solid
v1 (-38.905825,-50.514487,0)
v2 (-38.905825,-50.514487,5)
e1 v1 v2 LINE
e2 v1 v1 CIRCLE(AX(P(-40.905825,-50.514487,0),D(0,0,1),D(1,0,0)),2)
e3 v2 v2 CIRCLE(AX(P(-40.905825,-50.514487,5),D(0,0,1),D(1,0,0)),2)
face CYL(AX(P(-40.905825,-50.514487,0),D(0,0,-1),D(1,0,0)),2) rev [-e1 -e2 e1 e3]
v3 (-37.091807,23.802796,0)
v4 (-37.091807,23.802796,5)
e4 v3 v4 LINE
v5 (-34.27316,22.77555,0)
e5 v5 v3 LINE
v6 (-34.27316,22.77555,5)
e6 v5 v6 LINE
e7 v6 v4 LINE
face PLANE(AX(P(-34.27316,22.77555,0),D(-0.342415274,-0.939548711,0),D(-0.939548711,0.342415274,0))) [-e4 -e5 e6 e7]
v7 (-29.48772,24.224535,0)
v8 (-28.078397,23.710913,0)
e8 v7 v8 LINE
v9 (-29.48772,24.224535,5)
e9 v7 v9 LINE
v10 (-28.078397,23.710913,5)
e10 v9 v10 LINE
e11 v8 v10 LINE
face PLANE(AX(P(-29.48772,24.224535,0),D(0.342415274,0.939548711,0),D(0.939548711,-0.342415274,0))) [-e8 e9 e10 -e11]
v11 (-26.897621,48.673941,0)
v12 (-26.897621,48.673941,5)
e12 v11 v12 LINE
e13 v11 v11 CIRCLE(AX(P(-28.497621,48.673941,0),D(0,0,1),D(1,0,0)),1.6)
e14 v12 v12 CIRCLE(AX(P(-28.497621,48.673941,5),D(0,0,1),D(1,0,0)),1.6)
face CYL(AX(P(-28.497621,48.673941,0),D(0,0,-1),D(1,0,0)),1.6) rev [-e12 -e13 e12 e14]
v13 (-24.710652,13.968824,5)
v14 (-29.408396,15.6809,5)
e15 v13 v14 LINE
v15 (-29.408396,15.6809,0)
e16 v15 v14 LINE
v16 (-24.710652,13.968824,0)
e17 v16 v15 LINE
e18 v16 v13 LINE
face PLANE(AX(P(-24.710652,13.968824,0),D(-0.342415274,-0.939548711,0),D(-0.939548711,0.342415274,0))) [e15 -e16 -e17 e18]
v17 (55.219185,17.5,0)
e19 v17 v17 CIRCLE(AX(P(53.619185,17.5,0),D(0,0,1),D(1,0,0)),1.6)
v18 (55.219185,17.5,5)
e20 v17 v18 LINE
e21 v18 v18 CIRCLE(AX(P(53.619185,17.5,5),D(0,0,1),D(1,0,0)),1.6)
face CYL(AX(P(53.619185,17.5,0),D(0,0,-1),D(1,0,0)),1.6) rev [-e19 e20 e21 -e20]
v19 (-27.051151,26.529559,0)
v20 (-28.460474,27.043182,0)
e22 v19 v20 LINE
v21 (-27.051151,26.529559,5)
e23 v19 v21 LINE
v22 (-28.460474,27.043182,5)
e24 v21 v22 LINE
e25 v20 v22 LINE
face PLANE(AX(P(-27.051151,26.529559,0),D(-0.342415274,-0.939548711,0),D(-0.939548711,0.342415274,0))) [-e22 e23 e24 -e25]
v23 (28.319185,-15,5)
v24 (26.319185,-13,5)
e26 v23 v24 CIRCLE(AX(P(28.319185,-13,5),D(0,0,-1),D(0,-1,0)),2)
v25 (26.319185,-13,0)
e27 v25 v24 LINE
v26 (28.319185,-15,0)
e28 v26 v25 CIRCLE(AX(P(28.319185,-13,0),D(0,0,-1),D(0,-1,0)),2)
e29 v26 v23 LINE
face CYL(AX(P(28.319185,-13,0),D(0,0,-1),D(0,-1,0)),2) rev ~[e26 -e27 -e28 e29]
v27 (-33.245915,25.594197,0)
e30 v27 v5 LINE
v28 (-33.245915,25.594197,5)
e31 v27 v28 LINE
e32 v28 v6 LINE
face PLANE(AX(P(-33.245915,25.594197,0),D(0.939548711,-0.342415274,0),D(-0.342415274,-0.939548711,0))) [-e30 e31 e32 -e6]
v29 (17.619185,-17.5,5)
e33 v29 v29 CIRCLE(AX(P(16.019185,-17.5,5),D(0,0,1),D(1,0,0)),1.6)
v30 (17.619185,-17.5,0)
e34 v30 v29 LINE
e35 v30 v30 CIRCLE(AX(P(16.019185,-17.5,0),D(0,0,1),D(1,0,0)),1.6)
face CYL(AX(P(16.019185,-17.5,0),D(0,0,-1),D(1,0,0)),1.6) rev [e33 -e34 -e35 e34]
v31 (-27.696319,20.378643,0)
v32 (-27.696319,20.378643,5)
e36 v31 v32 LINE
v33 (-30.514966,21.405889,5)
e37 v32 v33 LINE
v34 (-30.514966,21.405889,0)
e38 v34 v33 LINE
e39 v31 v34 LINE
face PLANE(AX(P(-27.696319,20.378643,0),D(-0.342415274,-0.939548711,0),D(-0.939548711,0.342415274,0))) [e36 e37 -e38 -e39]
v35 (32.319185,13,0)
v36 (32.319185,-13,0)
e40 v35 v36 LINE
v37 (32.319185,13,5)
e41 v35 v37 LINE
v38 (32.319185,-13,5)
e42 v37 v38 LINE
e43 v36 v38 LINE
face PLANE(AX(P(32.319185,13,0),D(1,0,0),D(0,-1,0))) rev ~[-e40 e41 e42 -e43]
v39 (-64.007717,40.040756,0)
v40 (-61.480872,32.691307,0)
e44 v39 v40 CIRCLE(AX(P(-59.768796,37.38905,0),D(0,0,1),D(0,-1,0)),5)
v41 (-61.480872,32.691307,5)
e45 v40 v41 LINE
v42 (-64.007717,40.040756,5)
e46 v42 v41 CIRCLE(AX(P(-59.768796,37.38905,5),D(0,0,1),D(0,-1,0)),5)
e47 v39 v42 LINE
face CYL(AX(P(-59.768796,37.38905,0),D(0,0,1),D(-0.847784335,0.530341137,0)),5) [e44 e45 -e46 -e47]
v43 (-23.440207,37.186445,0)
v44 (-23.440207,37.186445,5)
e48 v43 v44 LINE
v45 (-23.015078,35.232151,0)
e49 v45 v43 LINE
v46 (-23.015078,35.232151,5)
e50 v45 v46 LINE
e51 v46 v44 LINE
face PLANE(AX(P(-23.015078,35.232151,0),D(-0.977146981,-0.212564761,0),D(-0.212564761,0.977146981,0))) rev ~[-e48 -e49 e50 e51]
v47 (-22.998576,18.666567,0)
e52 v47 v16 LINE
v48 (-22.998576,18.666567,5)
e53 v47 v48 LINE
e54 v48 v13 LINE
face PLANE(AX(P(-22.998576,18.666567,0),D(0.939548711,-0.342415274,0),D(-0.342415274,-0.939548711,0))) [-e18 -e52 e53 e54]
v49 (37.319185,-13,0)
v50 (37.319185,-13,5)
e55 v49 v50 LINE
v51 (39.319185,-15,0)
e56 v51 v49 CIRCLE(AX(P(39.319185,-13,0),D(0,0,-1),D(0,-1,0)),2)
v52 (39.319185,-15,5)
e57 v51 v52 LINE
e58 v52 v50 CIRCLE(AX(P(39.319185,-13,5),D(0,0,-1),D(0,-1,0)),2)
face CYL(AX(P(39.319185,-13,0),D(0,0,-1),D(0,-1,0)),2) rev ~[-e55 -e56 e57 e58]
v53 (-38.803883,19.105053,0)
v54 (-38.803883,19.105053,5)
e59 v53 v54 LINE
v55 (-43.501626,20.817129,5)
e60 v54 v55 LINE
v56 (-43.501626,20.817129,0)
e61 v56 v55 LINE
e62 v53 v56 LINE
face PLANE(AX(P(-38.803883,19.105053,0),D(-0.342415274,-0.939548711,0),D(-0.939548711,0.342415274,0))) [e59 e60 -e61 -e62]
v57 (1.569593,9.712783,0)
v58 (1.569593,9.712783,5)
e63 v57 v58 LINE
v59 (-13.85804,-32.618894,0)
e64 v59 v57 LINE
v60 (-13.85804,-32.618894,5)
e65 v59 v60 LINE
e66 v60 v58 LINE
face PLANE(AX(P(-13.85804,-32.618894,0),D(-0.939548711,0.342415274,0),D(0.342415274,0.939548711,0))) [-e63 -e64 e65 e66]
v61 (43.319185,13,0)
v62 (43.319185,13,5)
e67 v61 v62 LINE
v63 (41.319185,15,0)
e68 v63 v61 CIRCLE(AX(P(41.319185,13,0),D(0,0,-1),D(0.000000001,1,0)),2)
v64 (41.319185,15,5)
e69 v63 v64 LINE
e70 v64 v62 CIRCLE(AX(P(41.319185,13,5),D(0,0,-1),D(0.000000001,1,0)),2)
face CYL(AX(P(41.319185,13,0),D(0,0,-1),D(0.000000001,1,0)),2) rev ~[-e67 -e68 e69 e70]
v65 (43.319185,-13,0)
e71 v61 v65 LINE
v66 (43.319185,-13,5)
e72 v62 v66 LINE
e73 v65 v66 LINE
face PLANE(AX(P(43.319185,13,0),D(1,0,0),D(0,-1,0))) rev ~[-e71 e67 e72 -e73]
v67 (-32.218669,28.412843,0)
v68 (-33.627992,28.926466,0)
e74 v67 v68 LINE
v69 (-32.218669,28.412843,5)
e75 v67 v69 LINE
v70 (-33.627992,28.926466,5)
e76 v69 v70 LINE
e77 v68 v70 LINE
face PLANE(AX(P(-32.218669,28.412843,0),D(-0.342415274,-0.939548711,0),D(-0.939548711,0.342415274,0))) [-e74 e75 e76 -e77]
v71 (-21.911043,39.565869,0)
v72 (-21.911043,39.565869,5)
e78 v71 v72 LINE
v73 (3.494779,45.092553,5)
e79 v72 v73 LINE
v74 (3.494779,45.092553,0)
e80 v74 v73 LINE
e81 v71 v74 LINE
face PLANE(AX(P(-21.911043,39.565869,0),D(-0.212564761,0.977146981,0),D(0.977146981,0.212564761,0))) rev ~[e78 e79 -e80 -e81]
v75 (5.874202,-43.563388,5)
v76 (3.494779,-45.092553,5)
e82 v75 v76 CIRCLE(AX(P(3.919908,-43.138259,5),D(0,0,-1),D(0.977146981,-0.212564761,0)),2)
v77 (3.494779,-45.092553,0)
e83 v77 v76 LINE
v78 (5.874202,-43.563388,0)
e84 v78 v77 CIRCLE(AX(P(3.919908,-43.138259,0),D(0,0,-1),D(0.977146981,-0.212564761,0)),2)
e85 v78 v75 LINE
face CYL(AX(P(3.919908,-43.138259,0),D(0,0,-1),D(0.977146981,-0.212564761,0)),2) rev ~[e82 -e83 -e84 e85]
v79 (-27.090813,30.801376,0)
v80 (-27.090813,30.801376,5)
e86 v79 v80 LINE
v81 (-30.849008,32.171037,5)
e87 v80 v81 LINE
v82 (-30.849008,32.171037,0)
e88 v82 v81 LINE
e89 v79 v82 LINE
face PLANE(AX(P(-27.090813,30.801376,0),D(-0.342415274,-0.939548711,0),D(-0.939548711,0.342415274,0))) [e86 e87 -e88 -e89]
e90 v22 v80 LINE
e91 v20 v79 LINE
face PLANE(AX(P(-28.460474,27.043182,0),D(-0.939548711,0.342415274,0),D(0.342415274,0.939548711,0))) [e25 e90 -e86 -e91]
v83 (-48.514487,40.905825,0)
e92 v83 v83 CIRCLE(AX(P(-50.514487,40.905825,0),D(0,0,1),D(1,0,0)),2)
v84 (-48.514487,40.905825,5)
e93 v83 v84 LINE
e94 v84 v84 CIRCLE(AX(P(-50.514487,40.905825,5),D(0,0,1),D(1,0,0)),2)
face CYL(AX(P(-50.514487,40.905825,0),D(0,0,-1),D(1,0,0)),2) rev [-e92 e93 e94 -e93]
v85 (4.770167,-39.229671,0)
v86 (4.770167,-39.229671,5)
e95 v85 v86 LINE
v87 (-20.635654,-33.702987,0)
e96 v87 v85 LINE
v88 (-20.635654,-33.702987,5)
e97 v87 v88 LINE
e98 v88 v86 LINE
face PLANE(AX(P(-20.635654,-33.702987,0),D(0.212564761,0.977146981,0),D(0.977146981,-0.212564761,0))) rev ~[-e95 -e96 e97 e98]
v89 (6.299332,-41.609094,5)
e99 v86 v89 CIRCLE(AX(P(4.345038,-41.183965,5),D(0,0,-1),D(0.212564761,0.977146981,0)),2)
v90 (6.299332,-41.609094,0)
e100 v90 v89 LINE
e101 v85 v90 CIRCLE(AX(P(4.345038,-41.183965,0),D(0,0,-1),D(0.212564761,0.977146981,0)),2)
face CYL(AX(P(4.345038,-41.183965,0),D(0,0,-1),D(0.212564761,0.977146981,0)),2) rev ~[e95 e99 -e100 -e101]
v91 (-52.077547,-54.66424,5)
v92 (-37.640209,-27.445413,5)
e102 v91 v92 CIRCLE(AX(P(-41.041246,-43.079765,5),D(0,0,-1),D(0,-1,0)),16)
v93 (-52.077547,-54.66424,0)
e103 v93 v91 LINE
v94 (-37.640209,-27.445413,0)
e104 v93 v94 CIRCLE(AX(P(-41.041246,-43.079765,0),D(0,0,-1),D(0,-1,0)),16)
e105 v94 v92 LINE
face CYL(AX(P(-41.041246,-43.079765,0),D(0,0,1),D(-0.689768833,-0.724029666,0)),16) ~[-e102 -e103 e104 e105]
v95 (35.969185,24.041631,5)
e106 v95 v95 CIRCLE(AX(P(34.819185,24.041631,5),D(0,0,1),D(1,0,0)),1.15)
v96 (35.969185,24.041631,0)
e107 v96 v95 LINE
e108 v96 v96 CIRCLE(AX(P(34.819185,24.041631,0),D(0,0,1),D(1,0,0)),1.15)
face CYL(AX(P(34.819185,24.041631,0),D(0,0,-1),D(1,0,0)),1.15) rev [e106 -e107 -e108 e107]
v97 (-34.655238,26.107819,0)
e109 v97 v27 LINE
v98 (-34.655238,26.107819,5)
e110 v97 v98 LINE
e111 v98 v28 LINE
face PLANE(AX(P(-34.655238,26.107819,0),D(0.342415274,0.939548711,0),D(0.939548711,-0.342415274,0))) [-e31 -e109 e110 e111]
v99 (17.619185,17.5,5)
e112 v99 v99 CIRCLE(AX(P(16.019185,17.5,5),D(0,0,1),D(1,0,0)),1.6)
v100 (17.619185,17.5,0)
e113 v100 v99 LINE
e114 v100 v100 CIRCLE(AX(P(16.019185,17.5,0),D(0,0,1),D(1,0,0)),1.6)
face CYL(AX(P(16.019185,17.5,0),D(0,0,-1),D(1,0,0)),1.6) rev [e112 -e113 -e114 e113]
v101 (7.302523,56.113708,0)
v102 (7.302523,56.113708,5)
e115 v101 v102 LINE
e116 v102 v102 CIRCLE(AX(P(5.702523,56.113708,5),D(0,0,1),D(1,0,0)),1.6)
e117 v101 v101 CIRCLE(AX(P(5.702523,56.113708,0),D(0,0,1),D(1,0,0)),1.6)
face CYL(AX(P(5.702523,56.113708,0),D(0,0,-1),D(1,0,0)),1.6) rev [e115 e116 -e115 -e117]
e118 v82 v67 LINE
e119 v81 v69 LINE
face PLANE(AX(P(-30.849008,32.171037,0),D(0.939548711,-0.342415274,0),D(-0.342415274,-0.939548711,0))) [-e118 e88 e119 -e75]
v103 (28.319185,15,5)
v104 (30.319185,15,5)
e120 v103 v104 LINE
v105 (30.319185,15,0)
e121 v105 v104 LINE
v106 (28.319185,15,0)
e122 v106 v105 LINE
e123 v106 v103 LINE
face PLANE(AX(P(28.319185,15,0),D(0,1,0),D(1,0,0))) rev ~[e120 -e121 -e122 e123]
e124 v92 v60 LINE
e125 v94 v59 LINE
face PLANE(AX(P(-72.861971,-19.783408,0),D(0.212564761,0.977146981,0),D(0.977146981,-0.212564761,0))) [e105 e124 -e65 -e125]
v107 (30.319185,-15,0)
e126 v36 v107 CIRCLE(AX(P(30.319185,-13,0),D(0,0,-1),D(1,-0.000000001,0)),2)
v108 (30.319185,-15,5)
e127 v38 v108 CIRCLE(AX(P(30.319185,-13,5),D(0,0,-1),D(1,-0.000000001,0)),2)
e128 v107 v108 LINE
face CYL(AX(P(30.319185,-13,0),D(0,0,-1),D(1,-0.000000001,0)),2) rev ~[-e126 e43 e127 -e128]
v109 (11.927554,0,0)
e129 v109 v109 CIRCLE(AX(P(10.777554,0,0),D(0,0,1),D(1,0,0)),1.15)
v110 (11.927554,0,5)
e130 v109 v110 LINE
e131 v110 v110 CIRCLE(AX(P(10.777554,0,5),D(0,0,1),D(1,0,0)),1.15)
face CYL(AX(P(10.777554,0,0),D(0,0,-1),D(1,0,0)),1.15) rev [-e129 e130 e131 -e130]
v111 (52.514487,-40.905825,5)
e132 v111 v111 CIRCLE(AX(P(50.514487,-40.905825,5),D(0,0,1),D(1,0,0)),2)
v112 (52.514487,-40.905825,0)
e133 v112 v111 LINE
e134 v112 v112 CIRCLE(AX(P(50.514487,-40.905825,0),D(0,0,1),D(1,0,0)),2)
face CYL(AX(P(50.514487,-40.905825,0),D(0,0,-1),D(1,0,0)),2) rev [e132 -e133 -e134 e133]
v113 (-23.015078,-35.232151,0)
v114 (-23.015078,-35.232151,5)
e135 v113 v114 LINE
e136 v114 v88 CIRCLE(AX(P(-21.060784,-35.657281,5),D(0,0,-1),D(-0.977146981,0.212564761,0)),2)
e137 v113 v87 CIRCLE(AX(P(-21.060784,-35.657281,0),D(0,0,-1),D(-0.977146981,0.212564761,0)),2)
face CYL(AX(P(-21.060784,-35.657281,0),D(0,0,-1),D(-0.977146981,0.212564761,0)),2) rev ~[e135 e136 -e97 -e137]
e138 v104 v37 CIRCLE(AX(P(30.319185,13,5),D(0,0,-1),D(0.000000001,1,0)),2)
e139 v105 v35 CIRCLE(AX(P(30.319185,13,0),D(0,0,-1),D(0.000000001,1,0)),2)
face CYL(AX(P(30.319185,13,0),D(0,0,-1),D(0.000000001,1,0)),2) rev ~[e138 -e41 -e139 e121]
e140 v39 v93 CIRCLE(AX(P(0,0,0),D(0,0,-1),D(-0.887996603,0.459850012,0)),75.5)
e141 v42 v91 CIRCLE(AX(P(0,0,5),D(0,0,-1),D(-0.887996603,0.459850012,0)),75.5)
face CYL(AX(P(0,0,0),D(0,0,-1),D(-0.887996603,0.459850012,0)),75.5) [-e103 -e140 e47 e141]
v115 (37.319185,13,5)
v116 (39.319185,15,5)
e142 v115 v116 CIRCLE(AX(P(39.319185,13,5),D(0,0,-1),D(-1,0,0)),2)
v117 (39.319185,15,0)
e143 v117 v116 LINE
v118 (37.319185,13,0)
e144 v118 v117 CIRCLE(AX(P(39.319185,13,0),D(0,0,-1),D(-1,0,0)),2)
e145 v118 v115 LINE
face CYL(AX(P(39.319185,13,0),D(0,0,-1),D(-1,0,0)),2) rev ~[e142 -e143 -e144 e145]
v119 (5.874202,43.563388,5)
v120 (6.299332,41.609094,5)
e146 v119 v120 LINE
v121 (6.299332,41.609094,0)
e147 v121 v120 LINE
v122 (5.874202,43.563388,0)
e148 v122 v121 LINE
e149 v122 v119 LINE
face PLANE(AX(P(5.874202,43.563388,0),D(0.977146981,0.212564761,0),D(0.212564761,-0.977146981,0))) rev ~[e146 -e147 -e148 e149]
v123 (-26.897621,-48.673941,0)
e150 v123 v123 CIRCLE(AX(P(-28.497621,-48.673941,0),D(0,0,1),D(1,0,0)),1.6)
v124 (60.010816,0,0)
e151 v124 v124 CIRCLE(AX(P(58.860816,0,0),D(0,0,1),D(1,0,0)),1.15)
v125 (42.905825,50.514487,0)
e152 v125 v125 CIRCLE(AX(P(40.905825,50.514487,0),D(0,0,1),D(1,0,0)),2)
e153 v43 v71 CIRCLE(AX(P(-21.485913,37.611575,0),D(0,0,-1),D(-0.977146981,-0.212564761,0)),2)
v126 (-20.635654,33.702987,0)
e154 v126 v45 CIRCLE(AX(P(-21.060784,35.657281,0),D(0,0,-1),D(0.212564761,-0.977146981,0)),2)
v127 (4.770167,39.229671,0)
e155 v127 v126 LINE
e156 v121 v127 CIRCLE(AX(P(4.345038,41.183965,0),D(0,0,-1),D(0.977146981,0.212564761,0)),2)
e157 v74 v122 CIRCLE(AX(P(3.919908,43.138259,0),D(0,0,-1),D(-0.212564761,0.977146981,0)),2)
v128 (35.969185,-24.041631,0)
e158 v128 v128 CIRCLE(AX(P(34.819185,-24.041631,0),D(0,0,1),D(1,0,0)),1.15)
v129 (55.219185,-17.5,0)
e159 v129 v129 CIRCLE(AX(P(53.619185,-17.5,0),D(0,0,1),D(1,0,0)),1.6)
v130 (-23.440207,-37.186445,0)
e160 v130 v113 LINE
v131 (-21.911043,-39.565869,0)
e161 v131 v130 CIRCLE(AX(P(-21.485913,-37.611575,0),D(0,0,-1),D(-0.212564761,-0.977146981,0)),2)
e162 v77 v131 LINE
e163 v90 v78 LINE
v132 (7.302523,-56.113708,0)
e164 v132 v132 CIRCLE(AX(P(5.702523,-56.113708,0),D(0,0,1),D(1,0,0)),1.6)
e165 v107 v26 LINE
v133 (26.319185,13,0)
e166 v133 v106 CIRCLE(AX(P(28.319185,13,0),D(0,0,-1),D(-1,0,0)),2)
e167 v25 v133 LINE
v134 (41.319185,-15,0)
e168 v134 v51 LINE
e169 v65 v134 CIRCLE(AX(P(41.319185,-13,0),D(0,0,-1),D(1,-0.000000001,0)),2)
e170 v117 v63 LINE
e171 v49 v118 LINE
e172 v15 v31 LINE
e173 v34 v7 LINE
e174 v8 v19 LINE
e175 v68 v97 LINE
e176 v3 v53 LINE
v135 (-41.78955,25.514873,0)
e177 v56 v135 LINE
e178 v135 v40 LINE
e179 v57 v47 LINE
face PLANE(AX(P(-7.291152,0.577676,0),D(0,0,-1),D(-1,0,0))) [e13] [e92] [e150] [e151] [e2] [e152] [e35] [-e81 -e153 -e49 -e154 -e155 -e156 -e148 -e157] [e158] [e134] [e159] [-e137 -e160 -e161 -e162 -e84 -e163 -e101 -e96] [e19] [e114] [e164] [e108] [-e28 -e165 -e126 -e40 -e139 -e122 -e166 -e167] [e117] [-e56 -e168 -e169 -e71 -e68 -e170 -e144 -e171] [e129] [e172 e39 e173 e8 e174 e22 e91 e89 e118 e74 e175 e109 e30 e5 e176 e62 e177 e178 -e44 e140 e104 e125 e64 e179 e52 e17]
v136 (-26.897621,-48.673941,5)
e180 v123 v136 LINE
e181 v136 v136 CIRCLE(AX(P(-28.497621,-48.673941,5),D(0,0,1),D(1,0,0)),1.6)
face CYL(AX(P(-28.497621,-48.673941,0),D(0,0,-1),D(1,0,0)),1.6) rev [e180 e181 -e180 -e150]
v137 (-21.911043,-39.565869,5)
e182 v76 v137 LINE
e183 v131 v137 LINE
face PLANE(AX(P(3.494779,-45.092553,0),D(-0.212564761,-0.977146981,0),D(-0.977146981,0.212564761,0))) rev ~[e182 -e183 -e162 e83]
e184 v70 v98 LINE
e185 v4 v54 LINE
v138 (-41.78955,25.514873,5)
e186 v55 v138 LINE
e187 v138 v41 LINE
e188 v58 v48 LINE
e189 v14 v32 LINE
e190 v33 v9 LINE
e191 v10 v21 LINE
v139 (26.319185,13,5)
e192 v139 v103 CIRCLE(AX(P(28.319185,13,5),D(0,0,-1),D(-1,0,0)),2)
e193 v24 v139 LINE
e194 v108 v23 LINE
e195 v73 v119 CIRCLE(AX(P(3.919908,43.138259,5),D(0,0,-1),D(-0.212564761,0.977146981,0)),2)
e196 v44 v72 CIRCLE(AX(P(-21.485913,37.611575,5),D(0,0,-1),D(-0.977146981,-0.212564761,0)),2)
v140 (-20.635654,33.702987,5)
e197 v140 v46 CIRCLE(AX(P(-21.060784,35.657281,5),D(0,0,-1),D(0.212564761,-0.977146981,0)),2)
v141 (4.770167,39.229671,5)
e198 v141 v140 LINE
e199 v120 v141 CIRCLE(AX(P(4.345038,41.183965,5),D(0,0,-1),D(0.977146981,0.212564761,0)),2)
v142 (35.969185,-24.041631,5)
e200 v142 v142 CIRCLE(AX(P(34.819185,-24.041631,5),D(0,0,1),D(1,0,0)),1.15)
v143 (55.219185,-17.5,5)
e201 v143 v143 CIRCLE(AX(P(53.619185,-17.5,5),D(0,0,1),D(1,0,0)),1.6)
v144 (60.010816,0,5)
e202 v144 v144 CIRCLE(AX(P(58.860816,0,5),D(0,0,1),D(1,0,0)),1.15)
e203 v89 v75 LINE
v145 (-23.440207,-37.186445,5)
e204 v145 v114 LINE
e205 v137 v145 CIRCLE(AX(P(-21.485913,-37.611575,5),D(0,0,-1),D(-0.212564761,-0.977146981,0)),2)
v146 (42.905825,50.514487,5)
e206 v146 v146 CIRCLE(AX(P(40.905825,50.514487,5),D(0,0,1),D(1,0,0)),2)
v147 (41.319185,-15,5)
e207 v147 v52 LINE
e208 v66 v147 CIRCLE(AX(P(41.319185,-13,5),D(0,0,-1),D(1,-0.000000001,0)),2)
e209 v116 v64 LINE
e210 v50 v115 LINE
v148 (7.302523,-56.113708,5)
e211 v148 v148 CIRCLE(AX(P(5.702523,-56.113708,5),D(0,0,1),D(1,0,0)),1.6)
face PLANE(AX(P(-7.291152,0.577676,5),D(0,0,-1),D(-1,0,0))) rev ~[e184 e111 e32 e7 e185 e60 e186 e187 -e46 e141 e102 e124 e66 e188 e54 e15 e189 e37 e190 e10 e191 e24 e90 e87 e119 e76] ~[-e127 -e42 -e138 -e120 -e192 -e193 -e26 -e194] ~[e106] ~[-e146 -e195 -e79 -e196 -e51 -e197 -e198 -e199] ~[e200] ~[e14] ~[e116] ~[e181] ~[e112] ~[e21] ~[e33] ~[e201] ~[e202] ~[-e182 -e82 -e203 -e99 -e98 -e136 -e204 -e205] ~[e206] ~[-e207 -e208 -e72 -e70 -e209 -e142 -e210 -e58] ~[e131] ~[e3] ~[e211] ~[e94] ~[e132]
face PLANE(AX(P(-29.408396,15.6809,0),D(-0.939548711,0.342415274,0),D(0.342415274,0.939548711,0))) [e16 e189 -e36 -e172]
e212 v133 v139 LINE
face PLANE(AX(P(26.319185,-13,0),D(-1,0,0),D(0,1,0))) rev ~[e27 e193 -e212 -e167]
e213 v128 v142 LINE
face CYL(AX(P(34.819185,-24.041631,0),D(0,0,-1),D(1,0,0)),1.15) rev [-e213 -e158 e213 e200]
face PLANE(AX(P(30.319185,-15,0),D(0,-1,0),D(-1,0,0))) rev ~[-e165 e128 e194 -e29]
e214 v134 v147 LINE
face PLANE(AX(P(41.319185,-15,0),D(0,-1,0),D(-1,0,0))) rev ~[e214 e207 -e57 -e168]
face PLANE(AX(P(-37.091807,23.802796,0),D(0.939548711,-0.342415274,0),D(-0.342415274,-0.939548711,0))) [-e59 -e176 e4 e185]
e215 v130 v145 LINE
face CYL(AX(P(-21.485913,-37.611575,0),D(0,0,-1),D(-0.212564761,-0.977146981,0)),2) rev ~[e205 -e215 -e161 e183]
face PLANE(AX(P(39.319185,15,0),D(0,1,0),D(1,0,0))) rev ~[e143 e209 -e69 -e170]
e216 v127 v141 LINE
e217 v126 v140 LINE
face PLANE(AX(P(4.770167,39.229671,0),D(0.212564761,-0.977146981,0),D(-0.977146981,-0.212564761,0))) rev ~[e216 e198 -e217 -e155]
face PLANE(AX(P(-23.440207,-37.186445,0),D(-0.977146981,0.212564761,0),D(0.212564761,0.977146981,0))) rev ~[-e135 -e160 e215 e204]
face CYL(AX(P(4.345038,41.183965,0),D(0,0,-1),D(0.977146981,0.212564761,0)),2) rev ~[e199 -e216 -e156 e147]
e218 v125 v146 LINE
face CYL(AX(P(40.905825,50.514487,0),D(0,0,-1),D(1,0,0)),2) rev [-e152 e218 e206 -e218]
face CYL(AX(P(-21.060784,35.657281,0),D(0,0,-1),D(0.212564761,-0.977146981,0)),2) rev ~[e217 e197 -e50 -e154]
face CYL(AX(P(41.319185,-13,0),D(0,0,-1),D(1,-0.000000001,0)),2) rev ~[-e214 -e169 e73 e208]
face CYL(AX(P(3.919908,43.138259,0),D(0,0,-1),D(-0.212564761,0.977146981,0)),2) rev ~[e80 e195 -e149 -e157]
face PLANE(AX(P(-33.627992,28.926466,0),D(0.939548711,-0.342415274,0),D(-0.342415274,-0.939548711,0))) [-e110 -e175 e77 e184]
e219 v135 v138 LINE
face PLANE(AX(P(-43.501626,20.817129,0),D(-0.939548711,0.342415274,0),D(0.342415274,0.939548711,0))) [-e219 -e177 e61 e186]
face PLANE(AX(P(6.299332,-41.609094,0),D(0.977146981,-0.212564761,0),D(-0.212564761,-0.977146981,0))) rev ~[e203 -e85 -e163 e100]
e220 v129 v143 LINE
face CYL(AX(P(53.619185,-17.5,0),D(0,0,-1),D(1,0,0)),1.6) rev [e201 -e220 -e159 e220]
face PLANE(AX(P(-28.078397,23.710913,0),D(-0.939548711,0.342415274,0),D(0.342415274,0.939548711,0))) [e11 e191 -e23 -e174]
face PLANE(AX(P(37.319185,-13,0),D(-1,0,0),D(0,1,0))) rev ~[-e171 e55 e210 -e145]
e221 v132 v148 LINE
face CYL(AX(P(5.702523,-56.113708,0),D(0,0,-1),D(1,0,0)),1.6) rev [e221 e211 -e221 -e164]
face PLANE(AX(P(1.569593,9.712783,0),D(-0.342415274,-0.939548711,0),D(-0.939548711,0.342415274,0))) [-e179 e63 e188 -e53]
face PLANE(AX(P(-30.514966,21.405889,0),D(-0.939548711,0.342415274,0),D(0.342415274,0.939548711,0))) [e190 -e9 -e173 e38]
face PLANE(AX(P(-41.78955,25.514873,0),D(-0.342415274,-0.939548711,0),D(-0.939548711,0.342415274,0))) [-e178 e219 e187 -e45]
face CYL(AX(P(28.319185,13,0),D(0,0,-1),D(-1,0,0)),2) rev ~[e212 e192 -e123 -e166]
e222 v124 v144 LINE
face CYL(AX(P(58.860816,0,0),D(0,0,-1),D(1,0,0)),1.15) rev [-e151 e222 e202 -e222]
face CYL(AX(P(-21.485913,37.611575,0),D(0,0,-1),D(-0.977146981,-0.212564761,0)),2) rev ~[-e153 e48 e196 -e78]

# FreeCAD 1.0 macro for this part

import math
import FreeCAD as App
import Part
import Sketcher
from FreeCAD import Vector
Q = App.Units.Quantity


def edges_at(feature, points):
    """Names of the edges that pass closest to the given points."""
    edges = feature.Shape.Edges
    near = lambda p: min(range(len(edges)), key=lambda i: edges[i].distToShape(Part.Vertex(*p))[0])
    return sorted({f"Edge{near(p) + 1}" for p in points})

doc = App.newDocument("Part")
params = doc.addObject("Spreadsheet::Sheet", "Params")
for row, (alias, value) in enumerate([
    ("sketch1_diameter", "4 mm"),
    ("sketch1_diameter2", "3.2 mm"),
    ("sketch1_diameter3", "2.3 mm"),
    ("sketch1_radius", "75.5 mm"),
    ("sketch1_width", "2 mm"),
    ("pad1_length", "5 mm"),
    ("fillet_radius", "16 mm"),
    ("fillet2_radius", "5 mm"),
], start=1):
    params.set(f"A{row}", alias)
    params.set(f"B{row}", "=" + value)
    params.setAlias(f"B{row}", alias)

body = doc.addObject("PartDesign::Body", "Body")

sketch1 = body.newObject("Sketcher::SketchObject", "Sketch")
sketch1.AttachmentSupport = (doc.getObject("XY_Plane"), [""])
sketch1.MapMode = "FlatFace"
sketch1.addGeometry(Part.LineSegment(Vector(-67, 34.7, 0), Vector(-41.8, 25.5, 0)), False)
sketch1.addGeometry(Part.LineSegment(Vector(-41.8, 25.5, 0), Vector(-43.5, 20.8, 0)), False)
sketch1.addGeometry(Part.LineSegment(Vector(-43.5, 20.8, 0), Vector(-38.8, 19.1, 0)), False)
sketch1.addGeometry(Part.LineSegment(Vector(-38.8, 19.1, 0), Vector(-37.1, 23.8, 0)), False)
sketch1.addGeometry(Part.LineSegment(Vector(-37.1, 23.8, 0), Vector(-34.3, 22.8, 0)), False)
sketch1.addGeometry(Part.LineSegment(Vector(-34.3, 22.8, 0), Vector(-33.2, 25.6, 0)), False)
sketch1.addGeometry(Part.LineSegment(Vector(-33.2, 25.6, 0), Vector(-34.7, 26.1, 0)), False)
sketch1.addGeometry(Part.LineSegment(Vector(-34.7, 26.1, 0), Vector(-33.6, 28.9, 0)), False)
sketch1.addGeometry(Part.LineSegment(Vector(-33.6, 28.9, 0), Vector(-32.2, 28.4, 0)), False)
sketch1.addGeometry(Part.LineSegment(Vector(-32.2, 28.4, 0), Vector(-30.8, 32.2, 0)), False)
sketch1.addGeometry(Part.LineSegment(Vector(-30.8, 32.2, 0), Vector(-27.1, 30.8, 0)), False)
sketch1.addGeometry(Part.LineSegment(Vector(-27.1, 30.8, 0), Vector(-28.5, 27, 0)), False)
sketch1.addGeometry(Part.LineSegment(Vector(-28.5, 27, 0), Vector(-27.1, 26.5, 0)), False)
sketch1.addGeometry(Part.LineSegment(Vector(-27.1, 26.5, 0), Vector(-28.1, 23.7, 0)), False)
sketch1.addGeometry(Part.LineSegment(Vector(-28.1, 23.7, 0), Vector(-29.5, 24.2, 0)), False)
sketch1.addGeometry(Part.LineSegment(Vector(-29.5, 24.2, 0), Vector(-30.5, 21.4, 0)), False)
sketch1.addGeometry(Part.LineSegment(Vector(-30.5, 21.4, 0), Vector(-27.7, 20.4, 0)), False)
sketch1.addGeometry(Part.LineSegment(Vector(-27.7, 20.4, 0), Vector(-29.4, 15.7, 0)), False)
sketch1.addGeometry(Part.LineSegment(Vector(-29.4, 15.7, 0), Vector(-24.7, 14, 0)), False)
sketch1.addGeometry(Part.LineSegment(Vector(-24.7, 14, 0), Vector(-23, 18.7, 0)), False)
sketch1.addGeometry(Part.LineSegment(Vector(-23, 18.7, 0), Vector(1.6, 9.7, 0)), False)
sketch1.addGeometry(Part.LineSegment(Vector(1.6, 9.7, 0), Vector(-13.9, -32.6, 0)), False)
sketch1.addGeometry(Part.LineSegment(Vector(-13.9, -32.6, 0), Vector(-72.9, -19.8, 0)), False)
sketch1.addGeometry(Part.ArcOfCircle(Part.Circle(Vector(0, 0, 0), Vector(0, 0, 1), 75.5), math.radians(-165), math.radians(153)), False)
sketch1.addGeometry(Part.Circle(Vector(50.5, -40.9, 0), Vector(0, 0, 1), 2), False)
sketch1.addGeometry(Part.Circle(Vector(5.7, -56.1, 0), Vector(0, 0, 1), 1.6), False)
sketch1.addGeometry(Part.Circle(Vector(53.6, -17.5, 0), Vector(0, 0, 1), 1.6), False)
sketch1.addGeometry(Part.Circle(Vector(34.8, -24, 0), Vector(0, 0, 1), 1.1), False)
sketch1.addGeometry(Part.LineSegment(Vector(39.3, 15, 0), Vector(41.3, 15, 0)), False)
sketch1.addGeometry(Part.ArcOfCircle(Part.Circle(Vector(41.3, 13, 0), Vector(0, 0, 1), 2), math.radians(0), math.radians(90)), False)
sketch1.addGeometry(Part.LineSegment(Vector(43.3, 13, 0), Vector(43.3, -13, 0)), False)
sketch1.addGeometry(Part.ArcOfCircle(Part.Circle(Vector(41.3, -13, 0), Vector(0, 0, 1), 2), math.radians(-90), math.radians(0)), False)
sketch1.addGeometry(Part.LineSegment(Vector(41.3, -15, 0), Vector(39.3, -15, 0)), False)
sketch1.addGeometry(Part.ArcOfCircle(Part.Circle(Vector(39.3, -13, 0), Vector(0, 0, 1), 2), math.radians(180), math.radians(270)), False)
sketch1.addGeometry(Part.LineSegment(Vector(37.3, -13, 0), Vector(37.3, 13, 0)), False)
sketch1.addGeometry(Part.ArcOfCircle(Part.Circle(Vector(39.3, 13, 0), Vector(0, 0, 1), 2), math.radians(90), math.radians(180)), False)
sketch1.addGeometry(Part.Circle(Vector(16, -17.5, 0), Vector(0, 0, 1), 1.6), False)
sketch1.addGeometry(Part.LineSegment(Vector(6.3, -41.6, 0), Vector(5.9, -43.6, 0)), False)
sketch1.addGeometry(Part.ArcOfCircle(Part.Circle(Vector(3.9, -43.1, 0), Vector(0, 0, 1), 2), math.radians(-102), math.radians(-12)), False)
sketch1.addGeometry(Part.LineSegment(Vector(3.5, -45.1, 0), Vector(-21.9, -39.6, 0)), False)
sketch1.addGeometry(Part.ArcOfCircle(Part.Circle(Vector(-21.5, -37.6, 0), Vector(0, 0, 1), 2), math.radians(168), math.radians(258)), False)
sketch1.addGeometry(Part.LineSegment(Vector(-23.4, -37.2, 0), Vector(-23, -35.2, 0)), False)
sketch1.addGeometry(Part.ArcOfCircle(Part.Circle(Vector(-21.1, -35.7, 0), Vector(0, 0, 1), 2), math.radians(78), math.radians(168)), False)
sketch1.addGeometry(Part.LineSegment(Vector(-20.6, -33.7, 0), Vector(4.8, -39.2, 0)), False)
sketch1.addGeometry(Part.ArcOfCircle(Part.Circle(Vector(4.3, -41.2, 0), Vector(0, 0, 1), 2), math.radians(-12), math.radians(78)), False)
sketch1.addGeometry(Part.Circle(Vector(-28.5, -48.7, 0), Vector(0, 0, 1), 1.6), False)
sketch1.addGeometry(Part.Circle(Vector(-40.9, -50.5, 0), Vector(0, 0, 1), 2), False)
sketch1.addGeometry(Part.Circle(Vector(58.9, 0, 0), Vector(0, 0, 1), 1.1), False)
sketch1.addGeometry(Part.Circle(Vector(53.6, 17.5, 0), Vector(0, 0, 1), 1.6), False)
sketch1.addGeometry(Part.Circle(Vector(34.8, 24, 0), Vector(0, 0, 1), 1.1), False)
sketch1.addGeometry(Part.LineSegment(Vector(30.3, -15, 0), Vector(28.3, -15, 0)), False)
sketch1.addGeometry(Part.ArcOfCircle(Part.Circle(Vector(28.3, -13, 0), Vector(0, 0, 1), 2), math.radians(180), math.radians(270)), False)
sketch1.addGeometry(Part.LineSegment(Vector(26.3, -13, 0), Vector(26.3, 13, 0)), False)
sketch1.addGeometry(Part.ArcOfCircle(Part.Circle(Vector(28.3, 13, 0), Vector(0, 0, 1), 2), math.radians(90), math.radians(180)), False)
sketch1.addGeometry(Part.LineSegment(Vector(28.3, 15, 0), Vector(30.3, 15, 0)), False)
sketch1.addGeometry(Part.ArcOfCircle(Part.Circle(Vector(30.3, 13, 0), Vector(0, 0, 1), 2), math.radians(0), math.radians(90)), False)
sketch1.addGeometry(Part.LineSegment(Vector(32.3, 13, 0), Vector(32.3, -13, 0)), False)
sketch1.addGeometry(Part.ArcOfCircle(Part.Circle(Vector(30.3, -13, 0), Vector(0, 0, 1), 2), math.radians(-90), math.radians(0)), False)
sketch1.addGeometry(Part.Circle(Vector(10.8, 0, 0), Vector(0, 0, 1), 1.1), False)
sketch1.addGeometry(Part.Circle(Vector(16, 17.5, 0), Vector(0, 0, 1), 1.6), False)
sketch1.addGeometry(Part.Circle(Vector(40.9, 50.5, 0), Vector(0, 0, 1), 2), False)
sketch1.addGeometry(Part.Circle(Vector(5.7, 56.1, 0), Vector(0, 0, 1), 1.6), False)
sketch1.addGeometry(Part.LineSegment(Vector(-23, 35.2, 0), Vector(-23.4, 37.2, 0)), False)
sketch1.addGeometry(Part.ArcOfCircle(Part.Circle(Vector(-21.5, 37.6, 0), Vector(0, 0, 1), 2), math.radians(102), math.radians(192)), False)
sketch1.addGeometry(Part.LineSegment(Vector(-21.9, 39.6, 0), Vector(3.5, 45.1, 0)), False)
sketch1.addGeometry(Part.ArcOfCircle(Part.Circle(Vector(3.9, 43.1, 0), Vector(0, 0, 1), 2), math.radians(12), math.radians(102)), False)
sketch1.addGeometry(Part.LineSegment(Vector(5.9, 43.6, 0), Vector(6.3, 41.6, 0)), False)
sketch1.addGeometry(Part.ArcOfCircle(Part.Circle(Vector(4.3, 41.2, 0), Vector(0, 0, 1), 2), math.radians(-78), math.radians(12)), False)
sketch1.addGeometry(Part.LineSegment(Vector(4.8, 39.2, 0), Vector(-20.6, 33.7, 0)), False)
sketch1.addGeometry(Part.ArcOfCircle(Part.Circle(Vector(-21.1, 35.7, 0), Vector(0, 0, 1), 2), math.radians(-168), math.radians(-78)), False)
sketch1.addGeometry(Part.Circle(Vector(-50.5, 40.9, 0), Vector(0, 0, 1), 2), False)
sketch1.addGeometry(Part.Circle(Vector(-28.5, 48.7, 0), Vector(0, 0, 1), 1.6), False)
sketch1.addConstraint(Sketcher.Constraint("Coincident", 0, 2, 1, 1))
sketch1.addConstraint(Sketcher.Constraint("Coincident", 1, 2, 2, 1))
sketch1.addConstraint(Sketcher.Constraint("Coincident", 2, 2, 3, 1))
sketch1.addConstraint(Sketcher.Constraint("Coincident", 3, 2, 4, 1))
sketch1.addConstraint(Sketcher.Constraint("Coincident", 4, 2, 5, 1))
sketch1.addConstraint(Sketcher.Constraint("Coincident", 5, 2, 6, 1))
sketch1.addConstraint(Sketcher.Constraint("Coincident", 6, 2, 7, 1))
sketch1.addConstraint(Sketcher.Constraint("Coincident", 7, 2, 8, 1))
sketch1.addConstraint(Sketcher.Constraint("Coincident", 8, 2, 9, 1))
sketch1.addConstraint(Sketcher.Constraint("Coincident", 9, 2, 10, 1))
sketch1.addConstraint(Sketcher.Constraint("Coincident", 10, 2, 11, 1))
sketch1.addConstraint(Sketcher.Constraint("Coincident", 11, 2, 12, 1))
sketch1.addConstraint(Sketcher.Constraint("Coincident", 12, 2, 13, 1))
sketch1.addConstraint(Sketcher.Constraint("Coincident", 13, 2, 14, 1))
sketch1.addConstraint(Sketcher.Constraint("Coincident", 14, 2, 15, 1))
sketch1.addConstraint(Sketcher.Constraint("Coincident", 15, 2, 16, 1))
sketch1.addConstraint(Sketcher.Constraint("Coincident", 16, 2, 17, 1))
sketch1.addConstraint(Sketcher.Constraint("Coincident", 17, 2, 18, 1))
sketch1.addConstraint(Sketcher.Constraint("Coincident", 18, 2, 19, 1))
sketch1.addConstraint(Sketcher.Constraint("Coincident", 19, 2, 20, 1))
sketch1.addConstraint(Sketcher.Constraint("Coincident", 20, 2, 21, 1))
sketch1.addConstraint(Sketcher.Constraint("Coincident", 21, 2, 22, 1))
sketch1.addConstraint(Sketcher.Constraint("Coincident", 22, 2, 23, 1))
sketch1.addConstraint(Sketcher.Constraint("Coincident", 23, 2, 0, 1))
sketch1.addConstraint(Sketcher.Constraint("Tangent", 28, 2, 29, 2))
sketch1.addConstraint(Sketcher.Constraint("Tangent", 29, 1, 30, 1))
sketch1.addConstraint(Sketcher.Constraint("Tangent", 30, 2, 31, 2))
sketch1.addConstraint(Sketcher.Constraint("Tangent", 31, 1, 32, 1))
sketch1.addConstraint(Sketcher.Constraint("Tangent", 32, 2, 33, 2))
sketch1.addConstraint(Sketcher.Constraint("Tangent", 33, 1, 34, 1))
sketch1.addConstraint(Sketcher.Constraint("Tangent", 34, 2, 35, 2))
sketch1.addConstraint(Sketcher.Constraint("Tangent", 35, 1, 28, 1))
sketch1.addConstraint(Sketcher.Constraint("Tangent", 37, 2, 38, 2))
sketch1.addConstraint(Sketcher.Constraint("Tangent", 38, 1, 39, 1))
sketch1.addConstraint(Sketcher.Constraint("Tangent", 39, 2, 40, 2))
sketch1.addConstraint(Sketcher.Constraint("Tangent", 40, 1, 41, 1))
sketch1.addConstraint(Sketcher.Constraint("Tangent", 41, 2, 42, 2))
sketch1.addConstraint(Sketcher.Constraint("Tangent", 42, 1, 43, 1))
sketch1.addConstraint(Sketcher.Constraint("Tangent", 43, 2, 44, 2))
sketch1.addConstraint(Sketcher.Constraint("Tangent", 44, 1, 37, 1))
sketch1.addConstraint(Sketcher.Constraint("Tangent", 50, 2, 51, 2))
sketch1.addConstraint(Sketcher.Constraint("Tangent", 51, 1, 52, 1))
sketch1.addConstraint(Sketcher.Constraint("Tangent", 52, 2, 53, 2))
sketch1.addConstraint(Sketcher.Constraint("Tangent", 53, 1, 54, 1))
sketch1.addConstraint(Sketcher.Constraint("Tangent", 54, 2, 55, 2))
sketch1.addConstraint(Sketcher.Constraint("Tangent", 55, 1, 56, 1))
sketch1.addConstraint(Sketcher.Constraint("Tangent", 56, 2, 57, 2))
sketch1.addConstraint(Sketcher.Constraint("Tangent", 57, 1, 50, 1))
sketch1.addConstraint(Sketcher.Constraint("Tangent", 62, 2, 63, 2))
sketch1.addConstraint(Sketcher.Constraint("Tangent", 63, 1, 64, 1))
sketch1.addConstraint(Sketcher.Constraint("Tangent", 64, 2, 65, 2))
sketch1.addConstraint(Sketcher.Constraint("Tangent", 65, 1, 66, 1))
sketch1.addConstraint(Sketcher.Constraint("Tangent", 66, 2, 67, 2))
sketch1.addConstraint(Sketcher.Constraint("Tangent", 67, 1, 68, 1))
sketch1.addConstraint(Sketcher.Constraint("Tangent", 68, 2, 69, 2))
sketch1.addConstraint(Sketcher.Constraint("Tangent", 69, 1, 62, 1))
sketch1.addConstraint(Sketcher.Constraint("Horizontal", 28))
sketch1.addConstraint(Sketcher.Constraint("Vertical", 30))
sketch1.addConstraint(Sketcher.Constraint("Horizontal", 32))
sketch1.addConstraint(Sketcher.Constraint("Vertical", 34))
sketch1.addConstraint(Sketcher.Constraint("Horizontal", 50))
sketch1.addConstraint(Sketcher.Constraint("Vertical", 52))
sketch1.addConstraint(Sketcher.Constraint("Horizontal", 54))
sketch1.addConstraint(Sketcher.Constraint("Vertical", 56))
sketch1.addConstraint(Sketcher.Constraint("Coincident", 23, 3, -1, 1))
sketch1.addConstraint(Sketcher.Constraint("Equal", 25, 26))
sketch1.addConstraint(Sketcher.Constraint("Equal", 24, 29))
sketch1.addConstraint(Sketcher.Constraint("Equal", 29, 31))
sketch1.addConstraint(Sketcher.Constraint("Equal", 31, 33))
sketch1.addConstraint(Sketcher.Constraint("Equal", 33, 35))
sketch1.addConstraint(Sketcher.Constraint("Equal", 26, 36))
sketch1.addConstraint(Sketcher.Constraint("Equal", 35, 38))
sketch1.addConstraint(Sketcher.Constraint("Equal", 38, 40))
sketch1.addConstraint(Sketcher.Constraint("Equal", 40, 42))
sketch1.addConstraint(Sketcher.Constraint("Equal", 42, 44))
sketch1.addConstraint(Sketcher.Constraint("Equal", 36, 45))
sketch1.addConstraint(Sketcher.Constraint("Equal", 44, 46))
sketch1.addConstraint(Sketcher.Constraint("Equal", 27, 47))
sketch1.addConstraint(Sketcher.Constraint("Equal", 45, 48))
sketch1.addConstraint(Sketcher.Constraint("Equal", 47, 49))
sketch1.addConstraint(Sketcher.Constraint("Equal", 46, 51))
sketch1.addConstraint(Sketcher.Constraint("Equal", 51, 53))
sketch1.addConstraint(Sketcher.Constraint("Equal", 53, 55))
sketch1.addConstraint(Sketcher.Constraint("Equal", 55, 57))
sketch1.addConstraint(Sketcher.Constraint("Equal", 49, 58))
sketch1.addConstraint(Sketcher.Constraint("Equal", 48, 59))
sketch1.addConstraint(Sketcher.Constraint("Equal", 57, 60))
sketch1.addConstraint(Sketcher.Constraint("Equal", 59, 61))
sketch1.addConstraint(Sketcher.Constraint("Equal", 60, 63))
sketch1.addConstraint(Sketcher.Constraint("Equal", 63, 65))
sketch1.addConstraint(Sketcher.Constraint("Equal", 65, 67))
sketch1.addConstraint(Sketcher.Constraint("Equal", 67, 69))
sketch1.addConstraint(Sketcher.Constraint("Equal", 69, 70))
sketch1.addConstraint(Sketcher.Constraint("Equal", 61, 71))
sketch1.addConstraint(Sketcher.Constraint("Symmetric", 46, 3, 60, 3, -1, 1))
sketch1.addConstraint(Sketcher.Constraint("Symmetric", 24, 3, 70, 3, -1, 1))
sketch1.addConstraint(Sketcher.Constraint("Symmetric", 26, 3, 48, 3, -1))
sketch1.addConstraint(Sketcher.Constraint("Symmetric", 27, 3, 49, 3, -1))
sketch1.addConstraint(Sketcher.Constraint("Symmetric", 36, 3, 59, 3, -1))
sketch1.addConstraint(Sketcher.Constraint("Symmetric", 25, 3, 61, 3, -1))
sketch1.addConstraint(Sketcher.Constraint("Symmetric", 40, 3, 63, 3, -1))
sketch1.addConstraint(Sketcher.Constraint("Symmetric", 38, 3, 65, 3, -1))
sketch1.addConstraint(Sketcher.Constraint("Symmetric", 44, 3, 67, 3, -1))
sketch1.addConstraint(Sketcher.Constraint("Symmetric", 42, 3, 69, 3, -1))
sketch1.addConstraint(Sketcher.Constraint("Symmetric", 45, 3, 71, 3, -1))
sketch1.addConstraint(Sketcher.Constraint("PointOnObject", 47, 3, -1))
sketch1.addConstraint(Sketcher.Constraint("PointOnObject", 58, 3, -1))
sketch1.addConstraint(Sketcher.Constraint("Perpendicular", 0, 1))
sketch1.addConstraint(Sketcher.Constraint("Perpendicular", 1, 2))
sketch1.addConstraint(Sketcher.Constraint("Perpendicular", 2, 3))
sketch1.addConstraint(Sketcher.Constraint("Perpendicular", 3, 4))
sketch1.addConstraint(Sketcher.Constraint("Perpendicular", 4, 5))
sketch1.addConstraint(Sketcher.Constraint("Perpendicular", 5, 6))
sketch1.addConstraint(Sketcher.Constraint("Perpendicular", 6, 7))
sketch1.addConstraint(Sketcher.Constraint("Perpendicular", 7, 8))
sketch1.addConstraint(Sketcher.Constraint("Perpendicular", 8, 9))
sketch1.addConstraint(Sketcher.Constraint("Perpendicular", 9, 10))
sketch1.addConstraint(Sketcher.Constraint("Perpendicular", 10, 11))
sketch1.addConstraint(Sketcher.Constraint("Perpendicular", 11, 12))
sketch1.addConstraint(Sketcher.Constraint("Perpendicular", 12, 13))
sketch1.addConstraint(Sketcher.Constraint("Perpendicular", 13, 14))
sketch1.addConstraint(Sketcher.Constraint("Perpendicular", 14, 15))
sketch1.addConstraint(Sketcher.Constraint("Perpendicular", 15, 16))
sketch1.addConstraint(Sketcher.Constraint("Perpendicular", 16, 17))
sketch1.addConstraint(Sketcher.Constraint("Perpendicular", 17, 18))
sketch1.addConstraint(Sketcher.Constraint("Perpendicular", 18, 19))
sketch1.addConstraint(Sketcher.Constraint("Perpendicular", 19, 20))
sketch1.addConstraint(Sketcher.Constraint("Perpendicular", 20, 21))
sketch1.addConstraint(Sketcher.Constraint("Perpendicular", 22, 37))
sketch1.addConstraint(Sketcher.Constraint("Perpendicular", 37, 39))
sketch1.addConstraint(Sketcher.Constraint("Perpendicular", 39, 41))
sketch1.addConstraint(Sketcher.Constraint("Perpendicular", 41, 43))
sketch1.addConstraint(Sketcher.Constraint("Horizontal", 26, 3, 36, 3))
sketch1.addConstraint(Sketcher.Constraint("Horizontal", 33, 3, 51, 3))
sketch1.addConstraint(Sketcher.Constraint("Horizontal", 35, 3, 53, 3))
sketch1.addConstraint(Sketcher.Constraint("Equal", 32, 50))
sketch1.addConstraint(Sketcher.Constraint("Equal", 1, 2))
sketch1.addConstraint(Sketcher.Constraint("Equal", 2, 3))
sketch1.addConstraint(Sketcher.Constraint("Equal", 4, 5))
sketch1.addConstraint(Sketcher.Constraint("Equal", 5, 7))
sketch1.addConstraint(Sketcher.Constraint("Equal", 6, 8))
sketch1.addConstraint(Sketcher.Constraint("Equal", 9, 10))
sketch1.addConstraint(Sketcher.Constraint("Equal", 10, 11))
sketch1.addConstraint(Sketcher.Constraint("Equal", 8, 12))
sketch1.addConstraint(Sketcher.Constraint("Equal", 7, 13))
sketch1.addConstraint(Sketcher.Constraint("Equal", 12, 14))
sketch1.addConstraint(Sketcher.Constraint("Equal", 13, 15))
sketch1.addConstraint(Sketcher.Constraint("Equal", 15, 16))
sketch1.addConstraint(Sketcher.Constraint("Equal", 3, 17))
sketch1.addConstraint(Sketcher.Constraint("Equal", 17, 18))
sketch1.addConstraint(Sketcher.Constraint("Equal", 18, 19))
sketch1.addConstraint(Sketcher.Constraint("Diameter", 24, Q("4 mm")))
sketch1.addConstraint(Sketcher.Constraint("Diameter", 25, Q("3.2 mm")))
sketch1.addConstraint(Sketcher.Constraint("Diameter", 27, Q("2.3 mm")))
sketch1.addConstraint(Sketcher.Constraint("Radius", 23, Q("75.5 mm")))
sketch1.addConstraint(Sketcher.Constraint("DistanceX", 28, 1, 28, 2, Q("2 mm")))
sketch1.addConstraint(Sketcher.Constraint("DistanceY", 30, 2, 30, 1, Q("26 mm")))
sketch1.addConstraint(Sketcher.Constraint("Distance", 1, Q("5 mm")))
sketch1.addConstraint(Sketcher.Constraint("Distance", 4, Q("3 mm")))
sketch1.addConstraint(Sketcher.Constraint("Distance", 9, Q("4 mm")))
sketch1.addConstraint(Sketcher.Constraint("Distance", 37, Q("2 mm")))
sketch1.addConstraint(Sketcher.Constraint("Distance", 39, Q("26 mm")))
sketch1.addConstraint(Sketcher.Constraint("DistanceY", -1, 1, 29, 3, Q("13 mm")))
sketch1.addConstraint(Sketcher.Constraint("Distance", 6, Q("1.5 mm")))
sketch1.addConstraint(Sketcher.Constraint("DistanceY", 26, 3, -1, 1, Q("17.5 mm")))
sketch1.addConstraint(Sketcher.Constraint("DistanceY", -1, 1, 17, 2, Q("15.6809 mm")))
sketch1.addConstraint(Sketcher.Constraint("Distance", 21, Q("45.05533 mm")))
sketch1.addConstraint(Sketcher.Constraint("DistanceY", 25, 3, -1, 1, Q("56.113708 mm")))
sketch1.addConstraint(Sketcher.Constraint("DistanceY", 27, 3, -1, 1, Q("24.041631 mm")))
sketch1.addConstraint(Sketcher.Constraint("DistanceX", -1, 1, 38, 3, Q("3.919908 mm")))
sketch1.addConstraint(Sketcher.Constraint("DistanceY", 38, 3, -1, 1, Q("43.138259 mm")))
sketch1.addConstraint(Sketcher.Constraint("DistanceY", 42, 3, -1, 1, Q("35.657281 mm")))
sketch1.addConstraint(Sketcher.Constraint("DistanceX", 45, 3, -1, 1, Q("28.497621 mm")))
sketch1.addConstraint(Sketcher.Constraint("DistanceY", 45, 3, -1, 1, Q("48.673941 mm")))
sketch1.addConstraint(Sketcher.Constraint("DistanceX", 0, 2, -1, 1, Q("41.78955 mm")))
sketch1.addConstraint(Sketcher.Constraint("DistanceY", -1, 1, 1, 2, Q("20.817129 mm")))
sketch1.addConstraint(Sketcher.Constraint("DistanceX", 21, 2, -1, 1, Q("13.85804 mm")))
sketch1.addConstraint(Sketcher.Constraint("DistanceX", -1, 1, 24, 3, Q("50.514487 mm")))
sketch1.addConstraint(Sketcher.Constraint("DistanceY", 24, 3, -1, 1, Q("40.905825 mm")))
sketch1.addConstraint(Sketcher.Constraint("DistanceX", -1, 1, 25, 3, Q("5.702523 mm")))
sketch1.addConstraint(Sketcher.Constraint("DistanceX", -1, 1, 26, 3, Q("53.619185 mm")))
sketch1.addConstraint(Sketcher.Constraint("DistanceX", -1, 1, 27, 3, Q("34.819185 mm")))
sketch1.addConstraint(Sketcher.Constraint("DistanceX", -1, 1, 29, 3, Q("41.319185 mm")))
sketch1.addConstraint(Sketcher.Constraint("DistanceX", -1, 1, 36, 3, Q("16.019185 mm")))
sketch1.addConstraint(Sketcher.Constraint("DistanceX", 46, 3, -1, 1, Q("40.905825 mm")))
sketch1.addConstraint(Sketcher.Constraint("DistanceY", 46, 3, -1, 1, Q("50.514487 mm")))
sketch1.addConstraint(Sketcher.Constraint("DistanceX", -1, 1, 47, 3, Q("58.860816 mm")))
sketch1.addConstraint(Sketcher.Constraint("DistanceX", -1, 1, 51, 3, Q("28.319185 mm")))
sketch1.addConstraint(Sketcher.Constraint("DistanceX", -1, 1, 58, 3, Q("10.777554 mm")))
sketch1.setExpression("Constraints[151]", "Params.sketch1_diameter")
sketch1.setExpression("Constraints[152]", "Params.sketch1_diameter2")
sketch1.setExpression("Constraints[153]", "Params.sketch1_diameter3")
sketch1.setExpression("Constraints[154]", "Params.sketch1_radius")
sketch1.setExpression("Constraints[155]", "Params.sketch1_width")
pad1 = body.newObject("PartDesign::Pad", "Pad")
pad1.Profile = sketch1
pad1.setExpression("Length", "Params.pad1_length")
doc.recompute()

fillet = body.newObject("PartDesign::Fillet", "Fillet")
fillet.Base = (pad1, edges_at(pad1, [(-72.862, -19.783, 2.5)]))
fillet.setExpression("Radius", "Params.fillet_radius")
doc.recompute()

fillet2 = body.newObject("PartDesign::Fillet", "Fillet001")
fillet2.Base = (fillet, edges_at(fillet, [(-67.044, 34.719, 2.5)]))
fillet2.setExpression("Radius", "Params.fillet2_radius")

doc.recompute()
